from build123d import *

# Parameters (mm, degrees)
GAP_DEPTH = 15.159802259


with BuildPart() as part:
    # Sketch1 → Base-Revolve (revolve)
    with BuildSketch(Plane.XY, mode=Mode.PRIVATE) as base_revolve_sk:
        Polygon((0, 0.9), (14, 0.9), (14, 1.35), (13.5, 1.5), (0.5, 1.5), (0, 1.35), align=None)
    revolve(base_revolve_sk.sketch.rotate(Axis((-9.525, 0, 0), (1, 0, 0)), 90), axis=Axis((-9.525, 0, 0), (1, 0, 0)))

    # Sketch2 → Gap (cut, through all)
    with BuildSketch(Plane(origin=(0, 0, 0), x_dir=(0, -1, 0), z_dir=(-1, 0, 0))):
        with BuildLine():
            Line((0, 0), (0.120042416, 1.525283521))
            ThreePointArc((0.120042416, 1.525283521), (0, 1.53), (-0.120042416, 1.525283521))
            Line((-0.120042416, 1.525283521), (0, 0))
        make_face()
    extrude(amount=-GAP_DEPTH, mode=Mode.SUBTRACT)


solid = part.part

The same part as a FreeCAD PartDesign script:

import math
import FreeCAD as App
import Part
import Sketcher
Q = App.Units.Quantity


def add_polygon(sketch, points):
    """Adds a closed chain of lines whose ends are joined by coincident constraints."""
    first, n = sketch.GeometryCount, len(points)
    for a, b in zip(points, points[1:] + points[:1]):
        sketch.addGeometry(Part.LineSegment(App.Vector(*a, 0), App.Vector(*b, 0)), False)
    for i in range(n):
        sketch.addConstraint(Sketcher.Constraint("Coincident", first + i, 2, first + (i + 1) % n, 1))

doc = App.newDocument("Part")
body = doc.addObject("PartDesign::Body", "Body")

# Sketch on XY plane
sketch1 = body.newObject("Sketcher::SketchObject", "Sketch")
sketch1.AttachmentSupport = (doc.getObject("XY_Plane"), [""])
sketch1.MapMode = "FlatFace"
add_polygon(sketch1, [(0, 0.9), (14, 0.9), (14, 1.35), (13.5, 1.5), (0.5, 1.5), (0, 1.35)])  # lines 0-5
sketch1.addConstraint(Sketcher.Constraint("Horizontal", 0))
sketch1.addConstraint(Sketcher.Constraint("Vertical", 1))
sketch1.addConstraint(Sketcher.Constraint("Horizontal", 3))
sketch1.addConstraint(Sketcher.Constraint("Vertical", 5))
sketch1.addConstraint(Sketcher.Constraint("PointOnObject", 4, 2, -2))
sketch1.addConstraint(Sketcher.Constraint("Horizontal", 1, 2, 4, 2))
sketch1.addConstraint(Sketcher.Constraint("Equal", 2, 4))
sketch1.addConstraint(Sketcher.Constraint("DistanceX", 0, 1, 0, 2, 14.0))
sketch1.addConstraint(Sketcher.Constraint("DistanceX", 3, 2, 3, 1, 13.0))
sketch1.addConstraint(Sketcher.Constraint("DistanceY", 1, 1, 1, 2, 0.45))
sketch1.addConstraint(Sketcher.Constraint("DistanceY", -1, 1, 0, 2, 0.9))
sketch1.addConstraint(Sketcher.Constraint("DistanceY", -1, 1, 2, 2, 1.5))
revolution = body.newObject("PartDesign::Revolution", "Revolution")
revolution.Profile = sketch1
revolution.ReferenceAxis = (sketch1, ["H_Axis"])
revolution.Angle = 360

# Sketch on YZ plane
sketch2 = body.newObject("Sketcher::SketchObject", "Sketch001")
sketch2.AttachmentSupport = (doc.getObject("YZ_Plane"), [""])
sketch2.MapMode = "FlatFace"
sketch2.addGeometry(Part.LineSegment(App.Vector(0, 0, 0), App.Vector(-0.120042, 1.525284, 0)), False)
sketch2.addGeometry(Part.ArcOfCircle(Part.Circle(App.Vector(0, 0, 0), App.Vector(0, 0, 1), 1.53), math.radians(85.5), math.radians(94.5)), False)
sketch2.addGeometry(Part.LineSegment(App.Vector(0.120042, 1.525284, 0), App.Vector(0, 0, 0)), False)
sketch2.addConstraint(Sketcher.Constraint("Coincident", 0, 2, 1, 2))
sketch2.addConstraint(Sketcher.Constraint("Coincident", 1, 1, 2, 1))
sketch2.addConstraint(Sketcher.Constraint("Coincident", 2, 2, 0, 1))
sketch2.addConstraint(Sketcher.Constraint("Coincident", 1, 3, -1, 1))
sketch2.addConstraint(Sketcher.Constraint("Coincident", 2, 2, -1, 1))
sketch2.addConstraint(Sketcher.Constraint("Horizontal", 0, 2, 1, 1))
sketch2.addConstraint(Sketcher.Constraint("Radius", 1, 1.53))
sketch2.addConstraint(Sketcher.Constraint("Angle", 0, Q("94.5 deg")))
pocket1 = body.newObject("PartDesign::Pocket", "Pocket")
pocket1.Profile = sketch2
pocket1.Type = "ThroughAll"
pocket1.Reversed = True

doc.recompute()
